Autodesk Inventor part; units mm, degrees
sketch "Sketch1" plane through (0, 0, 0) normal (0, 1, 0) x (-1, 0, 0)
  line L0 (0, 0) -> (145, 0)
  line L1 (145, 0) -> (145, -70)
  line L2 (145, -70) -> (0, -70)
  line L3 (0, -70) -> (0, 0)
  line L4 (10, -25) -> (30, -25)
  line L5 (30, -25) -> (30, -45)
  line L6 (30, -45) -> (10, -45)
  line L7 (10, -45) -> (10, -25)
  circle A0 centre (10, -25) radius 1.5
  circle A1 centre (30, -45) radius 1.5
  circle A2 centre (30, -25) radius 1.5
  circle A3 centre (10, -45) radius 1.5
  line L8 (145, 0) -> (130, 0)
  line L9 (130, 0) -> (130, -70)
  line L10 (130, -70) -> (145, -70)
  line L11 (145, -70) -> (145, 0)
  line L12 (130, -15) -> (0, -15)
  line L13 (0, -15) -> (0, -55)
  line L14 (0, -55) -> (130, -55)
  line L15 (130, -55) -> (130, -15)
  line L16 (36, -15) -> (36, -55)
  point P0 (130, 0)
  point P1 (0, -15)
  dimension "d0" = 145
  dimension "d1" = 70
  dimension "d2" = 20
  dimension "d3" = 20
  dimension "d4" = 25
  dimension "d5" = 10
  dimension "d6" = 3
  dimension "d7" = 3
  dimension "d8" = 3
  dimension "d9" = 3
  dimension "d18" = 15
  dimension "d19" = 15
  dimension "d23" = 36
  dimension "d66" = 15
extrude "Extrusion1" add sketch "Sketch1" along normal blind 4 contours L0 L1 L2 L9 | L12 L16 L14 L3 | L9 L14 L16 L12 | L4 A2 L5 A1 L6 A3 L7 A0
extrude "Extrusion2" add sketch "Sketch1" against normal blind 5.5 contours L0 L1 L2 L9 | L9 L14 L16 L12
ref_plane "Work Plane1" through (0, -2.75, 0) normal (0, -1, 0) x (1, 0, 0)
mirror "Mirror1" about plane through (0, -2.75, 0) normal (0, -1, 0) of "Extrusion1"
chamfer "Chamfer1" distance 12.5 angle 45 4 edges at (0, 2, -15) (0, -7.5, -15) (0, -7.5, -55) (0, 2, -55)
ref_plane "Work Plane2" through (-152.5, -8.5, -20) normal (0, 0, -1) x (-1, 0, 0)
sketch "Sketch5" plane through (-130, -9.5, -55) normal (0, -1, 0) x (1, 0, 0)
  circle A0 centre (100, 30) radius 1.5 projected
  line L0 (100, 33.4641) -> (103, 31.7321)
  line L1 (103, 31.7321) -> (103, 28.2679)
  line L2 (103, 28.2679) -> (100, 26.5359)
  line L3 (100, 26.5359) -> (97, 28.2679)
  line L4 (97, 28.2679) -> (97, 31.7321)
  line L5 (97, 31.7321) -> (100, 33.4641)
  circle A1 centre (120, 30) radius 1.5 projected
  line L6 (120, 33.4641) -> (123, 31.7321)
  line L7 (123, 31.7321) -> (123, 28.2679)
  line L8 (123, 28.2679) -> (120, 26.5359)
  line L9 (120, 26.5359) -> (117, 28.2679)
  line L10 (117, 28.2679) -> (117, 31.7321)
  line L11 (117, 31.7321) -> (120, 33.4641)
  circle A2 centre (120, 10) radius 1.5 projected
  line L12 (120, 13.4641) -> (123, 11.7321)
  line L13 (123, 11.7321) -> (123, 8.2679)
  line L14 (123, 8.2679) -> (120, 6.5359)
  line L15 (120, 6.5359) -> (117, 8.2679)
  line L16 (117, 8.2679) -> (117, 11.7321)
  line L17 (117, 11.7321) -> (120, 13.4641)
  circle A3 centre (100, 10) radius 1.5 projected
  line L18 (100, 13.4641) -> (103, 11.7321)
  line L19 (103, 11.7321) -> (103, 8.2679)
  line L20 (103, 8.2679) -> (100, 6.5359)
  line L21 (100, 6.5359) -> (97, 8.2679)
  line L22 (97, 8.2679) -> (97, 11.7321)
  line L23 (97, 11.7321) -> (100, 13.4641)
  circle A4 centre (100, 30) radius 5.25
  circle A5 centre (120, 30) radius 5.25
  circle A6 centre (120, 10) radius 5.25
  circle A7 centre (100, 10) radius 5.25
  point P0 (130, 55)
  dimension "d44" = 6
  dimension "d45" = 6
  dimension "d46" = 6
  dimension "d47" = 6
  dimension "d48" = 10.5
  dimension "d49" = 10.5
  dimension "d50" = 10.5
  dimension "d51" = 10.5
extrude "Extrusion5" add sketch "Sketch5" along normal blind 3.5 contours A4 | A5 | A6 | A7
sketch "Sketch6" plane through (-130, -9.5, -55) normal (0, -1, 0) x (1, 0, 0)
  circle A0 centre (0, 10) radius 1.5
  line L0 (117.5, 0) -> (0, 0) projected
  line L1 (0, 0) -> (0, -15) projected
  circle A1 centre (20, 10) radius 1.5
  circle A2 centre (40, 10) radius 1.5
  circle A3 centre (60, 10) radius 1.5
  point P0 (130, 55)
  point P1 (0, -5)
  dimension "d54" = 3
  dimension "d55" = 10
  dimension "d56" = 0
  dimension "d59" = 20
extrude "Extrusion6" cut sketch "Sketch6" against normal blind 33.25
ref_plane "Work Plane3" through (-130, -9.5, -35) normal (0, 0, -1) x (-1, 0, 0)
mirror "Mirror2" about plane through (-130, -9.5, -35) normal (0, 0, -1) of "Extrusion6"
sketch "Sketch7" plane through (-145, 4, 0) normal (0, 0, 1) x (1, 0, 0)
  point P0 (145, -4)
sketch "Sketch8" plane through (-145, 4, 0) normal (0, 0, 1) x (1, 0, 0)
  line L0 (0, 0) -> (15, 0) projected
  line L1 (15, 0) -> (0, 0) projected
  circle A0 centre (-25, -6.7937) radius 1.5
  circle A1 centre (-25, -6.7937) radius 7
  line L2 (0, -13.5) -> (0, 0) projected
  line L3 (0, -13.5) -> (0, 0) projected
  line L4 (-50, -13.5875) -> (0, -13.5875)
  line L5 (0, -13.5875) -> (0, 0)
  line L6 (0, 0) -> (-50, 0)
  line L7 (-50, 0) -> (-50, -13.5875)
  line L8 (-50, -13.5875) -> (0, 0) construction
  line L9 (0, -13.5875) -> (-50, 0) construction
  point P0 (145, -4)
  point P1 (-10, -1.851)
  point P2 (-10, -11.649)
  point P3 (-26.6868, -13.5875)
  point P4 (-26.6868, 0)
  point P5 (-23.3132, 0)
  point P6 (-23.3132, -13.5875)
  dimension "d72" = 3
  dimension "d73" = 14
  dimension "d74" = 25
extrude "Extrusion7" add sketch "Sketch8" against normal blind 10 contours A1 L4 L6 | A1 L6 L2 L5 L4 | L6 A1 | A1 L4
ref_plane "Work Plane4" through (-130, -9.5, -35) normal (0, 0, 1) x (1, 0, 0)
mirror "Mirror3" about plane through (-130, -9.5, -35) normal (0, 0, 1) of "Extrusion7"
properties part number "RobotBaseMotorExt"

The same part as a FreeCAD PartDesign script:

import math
import FreeCAD as App
import Part
import Sketcher
Q = App.Units.Quantity


def edges_at(feature, points):
    """Names of the edges that pass closest to the given points."""
    edges = feature.Shape.Edges
    near = lambda p: min(range(len(edges)), key=lambda i: edges[i].distToShape(Part.Vertex(*p))[0])
    return sorted({f"Edge{near(p) + 1}" for p in points})


def add_polygon(sketch, points):
    """Adds a closed chain of lines whose ends are joined by coincident constraints."""
    first, n = sketch.GeometryCount, len(points)
    for a, b in zip(points, points[1:] + points[:1]):
        sketch.addGeometry(Part.LineSegment(App.Vector(*a, 0), App.Vector(*b, 0)), False)
    for i in range(n):
        sketch.addConstraint(Sketcher.Constraint("Coincident", first + i, 2, first + (i + 1) % n, 1))

doc = App.newDocument("Part")
body = doc.addObject("PartDesign::Body", "Body")

sketch1 = doc.addObject("Sketcher::SketchObject", "Sketch")
body.addObject(sketch1)
sketch1.AttachmentSupport = (doc.XZ_Plane, [""])
sketch1.MapMode = "FlatFace"
add_polygon(sketch1, [(-145, 0), (-130, 0), (-130, -15), (0, -15), (0, -55), (-130, -55), (-130, -70), (-145, -70)])
sketch1.addGeometry(Part.Circle(App.Vector(-10, -25, 0), App.Vector(0, 0, 1), 1.5), False)
sketch1.addGeometry(Part.Circle(App.Vector(-10, -45, 0), App.Vector(0, 0, 1), 1.5), False)
sketch1.addGeometry(Part.Circle(App.Vector(-30, -45, 0), App.Vector(0, 0, 1), 1.5), False)
sketch1.addGeometry(Part.Circle(App.Vector(-30, -25, 0), App.Vector(0, 0, 1), 1.5), False)
sketch1.addConstraint([
    Sketcher.Constraint("Horizontal", 0),
    Sketcher.Constraint("Vertical", 1),
    Sketcher.Constraint("Horizontal", 2),
    Sketcher.Constraint("Vertical", 3),
    Sketcher.Constraint("Horizontal", 4),
    Sketcher.Constraint("Vertical", 5),
    Sketcher.Constraint("Horizontal", 6),
    Sketcher.Constraint("Vertical", 7),
    Sketcher.Constraint("Equal", 8, 9),
    Sketcher.Constraint("Equal", 9, 10),
    Sketcher.Constraint("Equal", 10, 11),
    Sketcher.Constraint("PointOnObject", 0, 2, -1),
    Sketcher.Constraint("PointOnObject", 2, 2, -2),
    Sketcher.Constraint("Horizontal", 9, 3, 10, 3),
    Sketcher.Constraint("Horizontal", 8, 3, 11, 3),
    Sketcher.Constraint("Vertical", 8, 3, 9, 3),
    Sketcher.Constraint("Vertical", 10, 3, 11, 3),
    Sketcher.Constraint("Vertical", 1, 2, 4, 2),
    Sketcher.Constraint("Equal", 6, 1),
    Sketcher.Constraint("Equal", 1, 5),
    Sketcher.Constraint("Diameter", 8, Q("3 mm")),
    Sketcher.Constraint("DistanceX", 0, 1, 0, 2, Q("15 mm")),
    Sketcher.Constraint("DistanceY", 7, 1, 7, 2, Q("70 mm")),
    Sketcher.Constraint("DistanceX", 8, 3, -1, 1, Q("10 mm")),
    Sketcher.Constraint("DistanceY", 8, 3, -1, 1, Q("25 mm")),
    Sketcher.Constraint("DistanceX", 6, 2, -1, 1, Q("145 mm")),
    Sketcher.Constraint("DistanceY", 9, 3, 8, 3, Q("20 mm")),
    Sketcher.Constraint("DistanceX", 10, 3, 9, 3, Q("20 mm")),
])
pad1 = doc.addObject("PartDesign::Pad", "Pad")
body.addObject(pad1)
pad1.Profile = sketch1
pad1.Length = 4
pad1.Reversed = True

sketch2 = doc.addObject("Sketcher::SketchObject", "Sketch001")
body.addObject(sketch2)
sketch2.AttachmentSupport = (doc.XZ_Plane, [""])
sketch2.MapMode = "FlatFace"
add_polygon(sketch2, [(-145, 0), (-130, 0), (-130, -15), (-36, -15), (-36, -55), (-130, -55), (-130, -70), (-145, -70)])
sketch2.addConstraint([
    Sketcher.Constraint("Horizontal", 0),
    Sketcher.Constraint("Vertical", 1),
    Sketcher.Constraint("Horizontal", 2),
    Sketcher.Constraint("Vertical", 3),
    Sketcher.Constraint("Horizontal", 4),
    Sketcher.Constraint("Vertical", 5),
    Sketcher.Constraint("Horizontal", 6),
    Sketcher.Constraint("Vertical", 7),
    Sketcher.Constraint("PointOnObject", 0, 2, -1),
    Sketcher.Constraint("Vertical", 1, 2, 4, 2),
    Sketcher.Constraint("Equal", 6, 1),
    Sketcher.Constraint("Equal", 1, 5),
    Sketcher.Constraint("DistanceX", 0, 1, 0, 2, Q("15 mm")),
    Sketcher.Constraint("DistanceY", 7, 1, 7, 2, Q("70 mm")),
    Sketcher.Constraint("DistanceX", 2, 2, -1, 1, Q("36 mm")),
    Sketcher.Constraint("DistanceX", 6, 2, -1, 1, Q("145 mm")),
])
pad2 = doc.addObject("PartDesign::Pad", "Pad001")
body.addObject(pad2)
pad2.Profile = sketch2
pad2.Length = 5.5
doc.recompute()

datumplane = doc.addObject("PartDesign::Plane", "DatumPlane")
body.addObject(datumplane)
datumplane.AttachmentSupport = (doc.XZ_Plane, [""])
datumplane.MapMode = "FlatFace"
datumplane.AttachmentOffset = App.Placement(App.Vector(0, 0, 2.75), App.Rotation())
mirrored = doc.addObject("PartDesign::Mirrored", "Mirrored")
body.addObject(mirrored)
mirrored.Originals = [pad1]
mirrored.MirrorPlane = (datumplane, [""])
body.Tip = mirrored
doc.recompute()

chamfer = doc.addObject("PartDesign::Chamfer", "Chamfer")
body.addObject(chamfer)
chamfer.Base = (mirrored, edges_at(mirrored, [
    (0, 2, -15),
    (0, -7.5, -15),
    (0, -7.5, -55),
    (0, 2, -55),
]))
chamfer.Size = 12.5

sketch3 = doc.addObject("Sketcher::SketchObject", "Sketch002")
body.addObject(sketch3)
sketch3.AttachmentSupport = (doc.XZ_Plane, [""])
sketch3.MapMode = "FlatFace"
sketch3.AttachmentOffset = App.Placement(App.Vector(0, 0, 9.5), App.Rotation())
sketch3.addGeometry(Part.Circle(App.Vector(-30, -25, 0), App.Vector(0, 0, 1), 5.2), False)
add_polygon(sketch3, [(-33, -23.3), (-30, -21.5), (-27, -23.3), (-27, -26.7), (-30, -28.5), (-33, -26.7)])
sketch3.addGeometry(Part.Circle(App.Vector(-10, -25, 0), App.Vector(0, 0, 1), 5.2), False)
add_polygon(sketch3, [(-13, -23.3), (-10, -21.5), (-7, -23.3), (-7, -26.7), (-10, -28.5), (-13, -26.7)])
sketch3.addGeometry(Part.Circle(App.Vector(-10, -45, 0), App.Vector(0, 0, 1), 5.2), False)
add_polygon(sketch3, [(-13, -43.3), (-10, -41.5), (-7, -43.3), (-7, -46.7), (-10, -48.5), (-13, -46.7)])
sketch3.addGeometry(Part.Circle(App.Vector(-30, -45, 0), App.Vector(0, 0, 1), 5.2), False)
add_polygon(sketch3, [(-33, -43.3), (-30, -41.5), (-27, -43.3), (-27, -46.7), (-30, -48.5), (-33, -46.7)])
sketch3.addConstraint([
    Sketcher.Constraint("Vertical", 3),
    Sketcher.Constraint("Vertical", 6),
    Sketcher.Constraint("Vertical", 10),
    Sketcher.Constraint("Vertical", 13),
    Sketcher.Constraint("Vertical", 17),
    Sketcher.Constraint("Vertical", 20),
    Sketcher.Constraint("Vertical", 24),
    Sketcher.Constraint("Vertical", 27),
    Sketcher.Constraint("Equal", 0, 7),
    Sketcher.Constraint("Equal", 7, 14),
    Sketcher.Constraint("Equal", 14, 21),
    Sketcher.Constraint("Parallel", 1, 4),
    Sketcher.Constraint("Parallel", 2, 5),
    Sketcher.Constraint("Parallel", 4, 8),
    Sketcher.Constraint("Parallel", 5, 9),
    Sketcher.Constraint("Parallel", 8, 11),
    Sketcher.Constraint("Parallel", 9, 12),
    Sketcher.Constraint("Parallel", 11, 15),
    Sketcher.Constraint("Parallel", 12, 16),
    Sketcher.Constraint("Parallel", 15, 18),
    Sketcher.Constraint("Parallel", 16, 19),
    Sketcher.Constraint("Parallel", 18, 22),
    Sketcher.Constraint("Parallel", 19, 23),
    Sketcher.Constraint("Parallel", 22, 25),
    Sketcher.Constraint("Parallel", 23, 26),
    Sketcher.Constraint("Horizontal", 0, 3, 7, 3),
    Sketcher.Constraint("Horizontal", 14, 3, 21, 3),
    Sketcher.Constraint("Horizontal", 3, 2, 5, 2),
    Sketcher.Constraint("Horizontal", 2, 2, 6, 2),
    Sketcher.Constraint("Horizontal", 1, 2, 8, 2),
    Sketcher.Constraint("Horizontal", 6, 2, 9, 2),
    Sketcher.Constraint("Horizontal", 5, 2, 10, 2),
    Sketcher.Constraint("Horizontal", 4, 2, 11, 2),
    Sketcher.Constraint("Horizontal", 10, 2, 12, 2),
    Sketcher.Constraint("Horizontal", 17, 2, 19, 2),
    Sketcher.Constraint("Horizontal", 16, 2, 20, 2),
    Sketcher.Constraint("Horizontal", 15, 2, 22, 2),
    Sketcher.Constraint("Horizontal", 20, 2, 23, 2),
    Sketcher.Constraint("Horizontal", 19, 2, 24, 2),
    Sketcher.Constraint("Horizontal", 18, 2, 25, 2),
    Sketcher.Constraint("Horizontal", 24, 2, 26, 2),
    Sketcher.Constraint("Vertical", 7, 3, 14, 3),
    Sketcher.Constraint("Vertical", 0, 3, 21, 3),
    Sketcher.Constraint("Vertical", 21, 3, 1, 2),
    Sketcher.Constraint("Vertical", 1, 2, 4, 2),
    Sketcher.Constraint("Vertical", 14, 3, 8, 2),
    Sketcher.Constraint("Vertical", 11, 2, 15, 2),
    Sketcher.Constraint("Vertical", 10, 2, 16, 2),
    Sketcher.Constraint("Vertical", 4, 2, 22, 2),
    Sketcher.Constraint("Equal", 13, 17),
    Sketcher.Constraint("Diameter", 0, Q("10.5 mm")),
    Sketcher.Constraint("DistanceX", 5, 2, 3, 2, Q("6 mm")),
    Sketcher.Constraint("Angle", 1, Q("29.9993 deg")),
    Sketcher.Constraint("DistanceX", 0, 3, -1, 1, Q("30 mm")),
    Sketcher.Constraint("DistanceY", 0, 3, -1, 1, Q("25 mm")),
    Sketcher.Constraint("DistanceX", 7, 3, -1, 1, Q("10 mm")),
    Sketcher.Constraint("DistanceY", 14, 3, -1, 1, Q("45 mm")),
    Sketcher.Constraint("DistanceY", 17, 2, 10, 2, Q("20 mm")),
    Sketcher.Constraint("DistanceY", 3, 2, 3, 1, Q("3.4642 mm")),
    Sketcher.Constraint("DistanceY", 1, 2, -1, 1, Q("21.536 mm")),
])
pad3 = doc.addObject("PartDesign::Pad", "Pad002")
body.addObject(pad3)
pad3.Profile = sketch3
pad3.Length = 3.5

sketch4 = doc.addObject("Sketcher::SketchObject", "Sketch003")
body.addObject(sketch4)
sketch4.AttachmentSupport = (doc.XZ_Plane, [""])
sketch4.MapMode = "FlatFace"
sketch4.AttachmentOffset = App.Placement(App.Vector(0, 0, 9.5), App.Rotation())
sketch4.addGeometry([
    Part.Circle(App.Vector(-130, -45, 0), App.Vector(0, 0, 1), 1.5),
    Part.Circle(App.Vector(-110, -45, 0), App.Vector(0, 0, 1), 1.5),
    Part.Circle(App.Vector(-90, -45, 0), App.Vector(0, 0, 1), 1.5),
    Part.Circle(App.Vector(-70, -45, 0), App.Vector(0, 0, 1), 1.5),
], False)
sketch4.addConstraint([
    Sketcher.Constraint("Equal", 0, 1),
    Sketcher.Constraint("Equal", 1, 2),
    Sketcher.Constraint("Equal", 2, 3),
    Sketcher.Constraint("Horizontal", 0, 3, 1, 3),
    Sketcher.Constraint("Horizontal", 1, 3, 2, 3),
    Sketcher.Constraint("Horizontal", 2, 3, 3, 3),
    Sketcher.Constraint("Diameter", 0, Q("3 mm")),
    Sketcher.Constraint("DistanceX", 0, 3, 1, 3, Q("20 mm")),
    Sketcher.Constraint("DistanceX", 1, 3, 2, 3, Q("20 mm")),
    Sketcher.Constraint("DistanceX", 2, 3, 3, 3, Q("20 mm")),
    Sketcher.Constraint("DistanceX", 0, 3, -1, 1, Q("130 mm")),
    Sketcher.Constraint("DistanceY", 0, 3, -1, 1, Q("45 mm")),
])
pocket1 = doc.addObject("PartDesign::Pocket", "Pocket")
body.addObject(pocket1)
pocket1.Profile = sketch4
pocket1.Length = 33.25
doc.recompute()

datumplane2 = doc.addObject("PartDesign::Plane", "DatumPlane001")
body.addObject(datumplane2)
datumplane2.AttachmentSupport = (doc.XY_Plane, [""])
datumplane2.MapMode = "FlatFace"
datumplane2.AttachmentOffset = App.Placement(App.Vector(0, 0, -35), App.Rotation())
mirrored2 = doc.addObject("PartDesign::Mirrored", "Mirrored001")
body.addObject(mirrored2)
mirrored2.Originals = [pocket1]
mirrored2.MirrorPlane = (datumplane2, [""])
body.Tip = mirrored2

sketch5 = doc.addObject("Sketcher::SketchObject", "Sketch004")
body.addObject(sketch5)
sketch5.AttachmentSupport = (doc.XY_Plane, [""])
sketch5.MapMode = "FlatFace"
sketch5.addGeometry([
    Part.LineSegment(App.Vector(-168.3, -9.6, 0), App.Vector(-145, -9.6, 0)),
    Part.LineSegment(App.Vector(-145, -9.6, 0), App.Vector(-145, 4, 0)),
    Part.LineSegment(App.Vector(-145, 4, 0), App.Vector(-168.3, 4, 0)),
    Part.ArcOfCircle(Part.Circle(App.Vector(-170, -2.8, 0), App.Vector(0, 0, 1), 7), math.radians(76), math.radians(284)),
    Part.Circle(App.Vector(-170, -2.8, 0), App.Vector(0, 0, 1), 1.5),
], False)
sketch5.addConstraint([
    Sketcher.Constraint("Coincident", 0, 2, 1, 1),
    Sketcher.Constraint("Coincident", 1, 2, 2, 1),
    Sketcher.Constraint("Coincident", 2, 2, 3, 1),
    Sketcher.Constraint("Coincident", 3, 2, 0, 1),
    Sketcher.Constraint("Horizontal", 0),
    Sketcher.Constraint("Vertical", 1),
    Sketcher.Constraint("Horizontal", 2),
    Sketcher.Constraint("Coincident", 4, 3, 3, 3),
    Sketcher.Constraint("Diameter", 4, Q("3 mm")),
    Sketcher.Constraint("Radius", 3, Q("7 mm")),
    Sketcher.Constraint("DistanceX", 3, 3, 0, 2, Q("25 mm")),
    Sketcher.Constraint("DistanceX", 3, 3, -1, 1, Q("170 mm")),
    Sketcher.Constraint("DistanceY", -1, 1, 1, 2, Q("4 mm")),
    Sketcher.Constraint("DistanceX", 2, 2, 2, 1, Q("23.313 mm")),
    Sketcher.Constraint("DistanceX", 0, 1, 0, 2, Q("23.3135 mm")),
])
pad4 = doc.addObject("PartDesign::Pad", "Pad003")
body.addObject(pad4)
pad4.Profile = sketch5
pad4.Length = 10
pad4.Reversed = True
doc.recompute()

datumplane3 = doc.addObject("PartDesign::Plane", "DatumPlane002")
body.addObject(datumplane3)
datumplane3.AttachmentSupport = (doc.XY_Plane, [""])
datumplane3.MapMode = "FlatFace"
datumplane3.AttachmentOffset = App.Placement(App.Vector(0, 0, -35), App.Rotation())
mirrored3 = doc.addObject("PartDesign::Mirrored", "Mirrored002")
body.addObject(mirrored3)
mirrored3.Originals = [pad4]
mirrored3.MirrorPlane = (datumplane3, [""])
body.Tip = mirrored3

doc.recompute()
